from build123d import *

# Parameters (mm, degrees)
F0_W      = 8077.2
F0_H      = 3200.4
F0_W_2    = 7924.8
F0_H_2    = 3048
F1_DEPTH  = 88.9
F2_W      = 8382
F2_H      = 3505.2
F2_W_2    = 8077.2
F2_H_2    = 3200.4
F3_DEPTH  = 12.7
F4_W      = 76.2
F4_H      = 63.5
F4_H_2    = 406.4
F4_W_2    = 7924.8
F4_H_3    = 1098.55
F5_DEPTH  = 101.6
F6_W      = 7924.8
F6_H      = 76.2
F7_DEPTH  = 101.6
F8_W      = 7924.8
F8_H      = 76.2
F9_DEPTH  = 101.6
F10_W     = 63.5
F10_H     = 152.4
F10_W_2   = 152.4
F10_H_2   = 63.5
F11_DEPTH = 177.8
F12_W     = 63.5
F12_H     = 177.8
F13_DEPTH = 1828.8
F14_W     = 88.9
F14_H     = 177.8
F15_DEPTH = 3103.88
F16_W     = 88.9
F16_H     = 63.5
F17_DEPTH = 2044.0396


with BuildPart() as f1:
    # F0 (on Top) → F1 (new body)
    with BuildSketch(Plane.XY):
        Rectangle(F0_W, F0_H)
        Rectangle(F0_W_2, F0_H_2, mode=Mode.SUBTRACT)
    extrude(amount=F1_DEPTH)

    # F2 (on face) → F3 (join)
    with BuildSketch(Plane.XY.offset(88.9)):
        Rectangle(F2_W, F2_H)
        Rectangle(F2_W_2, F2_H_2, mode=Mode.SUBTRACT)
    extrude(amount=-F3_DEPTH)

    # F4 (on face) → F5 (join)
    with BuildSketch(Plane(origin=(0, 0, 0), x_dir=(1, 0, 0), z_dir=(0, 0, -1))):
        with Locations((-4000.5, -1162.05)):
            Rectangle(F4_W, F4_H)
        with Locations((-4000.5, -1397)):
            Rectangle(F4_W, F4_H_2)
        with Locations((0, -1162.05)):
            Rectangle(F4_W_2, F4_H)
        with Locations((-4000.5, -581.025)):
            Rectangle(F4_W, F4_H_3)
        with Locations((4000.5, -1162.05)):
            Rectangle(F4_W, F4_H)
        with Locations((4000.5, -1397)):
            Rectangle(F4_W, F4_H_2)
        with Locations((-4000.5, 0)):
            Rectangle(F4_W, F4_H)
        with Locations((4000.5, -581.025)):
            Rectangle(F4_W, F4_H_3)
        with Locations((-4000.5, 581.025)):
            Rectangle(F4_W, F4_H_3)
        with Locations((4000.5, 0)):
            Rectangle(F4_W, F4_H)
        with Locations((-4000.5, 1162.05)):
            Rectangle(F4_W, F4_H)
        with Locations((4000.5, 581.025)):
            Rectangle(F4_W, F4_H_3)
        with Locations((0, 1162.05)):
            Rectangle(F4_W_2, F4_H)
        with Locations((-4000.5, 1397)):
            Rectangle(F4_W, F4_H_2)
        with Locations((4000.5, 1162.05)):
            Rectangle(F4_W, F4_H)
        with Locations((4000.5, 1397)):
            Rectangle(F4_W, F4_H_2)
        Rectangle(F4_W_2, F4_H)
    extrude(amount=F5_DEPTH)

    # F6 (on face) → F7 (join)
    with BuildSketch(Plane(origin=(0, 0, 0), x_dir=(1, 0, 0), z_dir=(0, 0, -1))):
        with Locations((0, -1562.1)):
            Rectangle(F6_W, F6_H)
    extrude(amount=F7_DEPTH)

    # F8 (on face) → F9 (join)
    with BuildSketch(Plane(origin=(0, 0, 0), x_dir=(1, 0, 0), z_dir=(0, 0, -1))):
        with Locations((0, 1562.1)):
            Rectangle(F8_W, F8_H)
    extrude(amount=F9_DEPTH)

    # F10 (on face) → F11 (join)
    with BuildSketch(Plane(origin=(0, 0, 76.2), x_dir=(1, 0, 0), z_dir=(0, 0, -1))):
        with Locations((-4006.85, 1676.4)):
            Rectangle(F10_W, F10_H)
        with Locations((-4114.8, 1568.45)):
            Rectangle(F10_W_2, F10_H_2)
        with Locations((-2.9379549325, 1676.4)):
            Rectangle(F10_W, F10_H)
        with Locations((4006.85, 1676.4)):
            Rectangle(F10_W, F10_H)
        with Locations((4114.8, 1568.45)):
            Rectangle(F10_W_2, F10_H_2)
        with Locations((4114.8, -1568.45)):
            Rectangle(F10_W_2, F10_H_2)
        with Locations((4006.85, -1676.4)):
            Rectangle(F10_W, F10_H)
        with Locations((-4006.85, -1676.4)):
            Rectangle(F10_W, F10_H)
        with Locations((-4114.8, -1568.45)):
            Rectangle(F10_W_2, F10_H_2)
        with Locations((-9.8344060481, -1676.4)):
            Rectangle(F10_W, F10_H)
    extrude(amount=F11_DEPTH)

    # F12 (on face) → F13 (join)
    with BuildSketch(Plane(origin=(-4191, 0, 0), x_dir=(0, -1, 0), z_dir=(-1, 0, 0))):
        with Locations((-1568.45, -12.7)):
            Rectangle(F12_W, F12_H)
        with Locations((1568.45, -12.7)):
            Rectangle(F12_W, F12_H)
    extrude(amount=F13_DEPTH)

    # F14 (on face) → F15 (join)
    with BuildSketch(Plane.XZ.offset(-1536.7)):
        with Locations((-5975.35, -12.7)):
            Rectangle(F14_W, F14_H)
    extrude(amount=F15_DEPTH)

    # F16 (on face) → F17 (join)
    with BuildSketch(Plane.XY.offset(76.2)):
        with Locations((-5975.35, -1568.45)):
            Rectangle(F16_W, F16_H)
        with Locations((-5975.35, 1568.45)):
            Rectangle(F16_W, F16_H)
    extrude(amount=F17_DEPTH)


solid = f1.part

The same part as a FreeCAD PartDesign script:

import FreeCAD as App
import Part
import Sketcher
Q = App.Units.Quantity


def add_polygon(sketch, points):
    """Adds a closed chain of lines whose ends are joined by coincident constraints."""
    first, n = sketch.GeometryCount, len(points)
    for a, b in zip(points, points[1:] + points[:1]):
        sketch.addGeometry(Part.LineSegment(App.Vector(*a, 0), App.Vector(*b, 0)), False)
    for i in range(n):
        sketch.addConstraint(Sketcher.Constraint("Coincident", first + i, 2, first + (i + 1) % n, 1))

doc = App.newDocument("Part")
body = doc.addObject("PartDesign::Body", "Body")

# Sketch on XY plane
sketch1 = body.newObject("Sketcher::SketchObject", "Sketch")
sketch1.AttachmentSupport = (doc.getObject("XY_Plane"), [""])
sketch1.MapMode = "FlatFace"
add_polygon(sketch1, [(-4039, 1600), (-4039, -1600), (4039, -1600), (4039, 1600)])  # lines 0-3
add_polygon(sketch1, [(3962, -1524), (-3962, -1524), (-3962, 1524), (3962, 1524)])  # lines 4-7
sketch1.addConstraint(Sketcher.Constraint("Vertical", 0))
sketch1.addConstraint(Sketcher.Constraint("Horizontal", 1))
sketch1.addConstraint(Sketcher.Constraint("Vertical", 2))
sketch1.addConstraint(Sketcher.Constraint("Horizontal", 3))
sketch1.addConstraint(Sketcher.Constraint("Horizontal", 4))
sketch1.addConstraint(Sketcher.Constraint("Vertical", 5))
sketch1.addConstraint(Sketcher.Constraint("Horizontal", 6))
sketch1.addConstraint(Sketcher.Constraint("Vertical", 7))
sketch1.addConstraint(Sketcher.Constraint("Symmetric", 0, 2, 2, 2, -1, 1))
sketch1.addConstraint(Sketcher.Constraint("Symmetric", 4, 2, 6, 2, -1, 1))
sketch1.addConstraint(Sketcher.Constraint("DistanceX", 1, 1, 1, 2, Q("318 in")))
sketch1.addConstraint(Sketcher.Constraint("DistanceX", 4, 2, 4, 1, Q("312 in")))
sketch1.addConstraint(Sketcher.Constraint("DistanceY", 0, 2, 0, 1, Q("126 in")))
sketch1.addConstraint(Sketcher.Constraint("DistanceY", 5, 1, 5, 2, Q("120 in")))
pad1 = body.newObject("PartDesign::Pad", "Pad")
pad1.Profile = sketch1
pad1.Length = Q("3.5 in")

# Sketch on XY plane
sketch2 = body.newObject("Sketcher::SketchObject", "Sketch001")
sketch2.AttachmentSupport = (doc.getObject("XY_Plane"), [""])
sketch2.MapMode = "FlatFace"
sketch2.AttachmentOffset = App.Placement(App.Vector(0, 0, 3.5 * 25.4), App.Rotation())
add_polygon(sketch2, [(-4191, 1753), (-4191, -1753), (4191, -1753), (4191, 1753)])  # lines 0-3
add_polygon(sketch2, [(4039, -1600), (-4039, -1600), (-4039, 1600), (4039, 1600)])  # lines 4-7
sketch2.addConstraint(Sketcher.Constraint("Vertical", 0))
sketch2.addConstraint(Sketcher.Constraint("Horizontal", 1))
sketch2.addConstraint(Sketcher.Constraint("Vertical", 2))
sketch2.addConstraint(Sketcher.Constraint("Horizontal", 3))
sketch2.addConstraint(Sketcher.Constraint("Horizontal", 4))
sketch2.addConstraint(Sketcher.Constraint("Vertical", 5))
sketch2.addConstraint(Sketcher.Constraint("Horizontal", 6))
sketch2.addConstraint(Sketcher.Constraint("Vertical", 7))
sketch2.addConstraint(Sketcher.Constraint("Symmetric", 0, 2, 2, 2, -1, 1))
sketch2.addConstraint(Sketcher.Constraint("Symmetric", 4, 2, 6, 2, -1, 1))
sketch2.addConstraint(Sketcher.Constraint("DistanceX", 1, 1, 1, 2, Q("330 in")))
sketch2.addConstraint(Sketcher.Constraint("DistanceX", 4, 2, 4, 1, Q("318 in")))
sketch2.addConstraint(Sketcher.Constraint("DistanceY", 0, 2, 0, 1, Q("138 in")))
sketch2.addConstraint(Sketcher.Constraint("DistanceY", 5, 1, 5, 2, Q("126 in")))
pad2 = body.newObject("PartDesign::Pad", "Pad001")
pad2.Profile = sketch2
pad2.Length = Q("0.5 in")
pad2.Reversed = True

# Sketch on XY plane
sketch3 = body.newObject("Sketcher::SketchObject", "Sketch002")
sketch3.AttachmentSupport = (doc.getObject("XY_Plane"), [""])
sketch3.MapMode = "FlatFace"
add_polygon(sketch3, [(4039, 1600), (4039, -1600), (3962, -1600), (3962, -1194), (-3962, -1194), (-3962, -1600), (-4039, -1600), (-4039, 1600), (-3962, 1600), (-3962, 1194), (3962, 1194), (3962, 1600)])  # lines 0-11
add_polygon(sketch3, [(-3962, -1130), (3962, -1130), (3962, -32), (-3962, -32)])  # lines 12-15
add_polygon(sketch3, [(3962, 32), (3962, 1130), (-3962, 1130), (-3962, 32)])  # lines 16-19
sketch3.addConstraint(Sketcher.Constraint("Vertical", 0))
sketch3.addConstraint(Sketcher.Constraint("Horizontal", 1))
sketch3.addConstraint(Sketcher.Constraint("Vertical", 2))
sketch3.addConstraint(Sketcher.Constraint("Horizontal", 3))
sketch3.addConstraint(Sketcher.Constraint("Vertical", 4))
sketch3.addConstraint(Sketcher.Constraint("Horizontal", 5))
sketch3.addConstraint(Sketcher.Constraint("Vertical", 6))
sketch3.addConstraint(Sketcher.Constraint("Horizontal", 7))
sketch3.addConstraint(Sketcher.Constraint("Vertical", 8))
sketch3.addConstraint(Sketcher.Constraint("Horizontal", 9))
sketch3.addConstraint(Sketcher.Constraint("Vertical", 10))
sketch3.addConstraint(Sketcher.Constraint("Horizontal", 11))
sketch3.addConstraint(Sketcher.Constraint("Horizontal", 12))
sketch3.addConstraint(Sketcher.Constraint("Vertical", 13))
sketch3.addConstraint(Sketcher.Constraint("Horizontal", 14))
sketch3.addConstraint(Sketcher.Constraint("Vertical", 15))
sketch3.addConstraint(Sketcher.Constraint("Vertical", 16))
sketch3.addConstraint(Sketcher.Constraint("Horizontal", 17))
sketch3.addConstraint(Sketcher.Constraint("Vertical", 18))
sketch3.addConstraint(Sketcher.Constraint("Horizontal", 19))
sketch3.addConstraint(Sketcher.Constraint("Symmetric", 0, 2, 6, 2, -1, 1))
sketch3.addConstraint(Sketcher.Constraint("Symmetric", 2, 2, 8, 2, -1, 1))
sketch3.addConstraint(Sketcher.Constraint("Symmetric", 4, 2, 10, 2, -1, 1))
sketch3.addConstraint(Sketcher.Constraint("Symmetric", 15, 2, 16, 2, -1, 1))
sketch3.addConstraint(Sketcher.Constraint("Symmetric", 13, 2, 18, 2, -1, 1))
sketch3.addConstraint(Sketcher.Constraint("Symmetric", 1, 2, 4, 2, -2))
sketch3.addConstraint(Sketcher.Constraint("Vertical", 10, 2, 12, 2))
sketch3.addConstraint(Sketcher.Constraint("Vertical", 8, 2, 14, 2))
sketch3.addConstraint(Sketcher.Constraint("DistanceX", 1, 2, 1, 1, Q("3 in")))
sketch3.addConstraint(Sketcher.Constraint("DistanceX", 3, 2, 3, 1, Q("312 in")))
sketch3.addConstraint(Sketcher.Constraint("DistanceY", 0, 2, 0, 1, Q("126 in")))
sketch3.addConstraint(Sketcher.Constraint("DistanceY", 2, 1, 2, 2, Q("16 in")))
sketch3.addConstraint(Sketcher.Constraint("DistanceY", 12, 2, 16, 2, Q("89 in")))
sketch3.addConstraint(Sketcher.Constraint("DistanceY", 13, 1, 13, 2, Q("43.25 in")))
pad3 = body.newObject("PartDesign::Pad", "Pad002")
pad3.Profile = sketch3
pad3.Length = Q("4 in")
pad3.Reversed = True

# Sketch on XY plane
sketch4 = body.newObject("Sketcher::SketchObject", "Sketch003")
sketch4.AttachmentSupport = (doc.getObject("XY_Plane"), [""])
sketch4.MapMode = "FlatFace"
add_polygon(sketch4, [(-3962, 1524), (-3962, 1600), (3962, 1600), (3962, 1524)])  # lines 0-3
sketch4.addConstraint(Sketcher.Constraint("Vertical", 0))
sketch4.addConstraint(Sketcher.Constraint("Horizontal", 1))
sketch4.addConstraint(Sketcher.Constraint("Vertical", 2))
sketch4.addConstraint(Sketcher.Constraint("Horizontal", 3))
sketch4.addConstraint(Sketcher.Constraint("DistanceX", 1, 1, 1, 2, Q("312 in")))
sketch4.addConstraint(Sketcher.Constraint("DistanceY", 0, 1, 0, 2, Q("3 in")))
sketch4.addConstraint(Sketcher.Constraint("DistanceX", 0, 2, -1, 1, Q("156 in")))
sketch4.addConstraint(Sketcher.Constraint("DistanceY", -1, 1, 0, 2, Q("63 in")))
pad4 = body.newObject("PartDesign::Pad", "Pad003")
pad4.Profile = sketch4
pad4.Length = Q("4 in")
pad4.Reversed = True

# Sketch on XY plane
sketch5 = body.newObject("Sketcher::SketchObject", "Sketch004")
sketch5.AttachmentSupport = (doc.getObject("XY_Plane"), [""])
sketch5.MapMode = "FlatFace"
add_polygon(sketch5, [(-3962, -1600), (-3962, -1524), (3962, -1524), (3962, -1600)])  # lines 0-3
sketch5.addConstraint(Sketcher.Constraint("Vertical", 0))
sketch5.addConstraint(Sketcher.Constraint("Horizontal", 1))
sketch5.addConstraint(Sketcher.Constraint("Vertical", 2))
sketch5.addConstraint(Sketcher.Constraint("Horizontal", 3))
sketch5.addConstraint(Sketcher.Constraint("DistanceX", 1, 1, 1, 2, Q("312 in")))
sketch5.addConstraint(Sketcher.Constraint("DistanceY", 0, 1, 0, 2, Q("3 in")))
sketch5.addConstraint(Sketcher.Constraint("DistanceX", 0, 2, -1, 1, Q("156 in")))
sketch5.addConstraint(Sketcher.Constraint("DistanceY", 0, 2, -1, 1, Q("60 in")))
pad5 = body.newObject("PartDesign::Pad", "Pad004")
pad5.Profile = sketch5
pad5.Length = Q("4 in")
pad5.Reversed = True

# Sketch on XY plane
sketch6 = body.newObject("Sketcher::SketchObject", "Sketch005")
sketch6.AttachmentSupport = (doc.getObject("XY_Plane"), [""])
sketch6.MapMode = "FlatFace"
sketch6.AttachmentOffset = App.Placement(App.Vector(0, 0, 3 * 25.4), App.Rotation())
add_polygon(sketch6, [(-4039, -1753), (-4039, -1600), (-3975, -1600), (-3975, -1753)])  # lines 0-3
add_polygon(sketch6, [(-4191, -1600), (-4191, -1537), (-4039, -1537), (-4039, -1600)])  # lines 4-7
add_polygon(sketch6, [(-35, -1753), (-35, -1600), (29, -1600), (29, -1753)])  # lines 8-11
add_polygon(sketch6, [(3975, -1753), (3975, -1600), (4039, -1600), (4039, -1753)])  # lines 12-15
add_polygon(sketch6, [(4039, -1600), (4039, -1537), (4191, -1537), (4191, -1600)])  # lines 16-19
add_polygon(sketch6, [(4039, 1537), (4039, 1600), (4191, 1600), (4191, 1537)])  # lines 20-23
add_polygon(sketch6, [(3975, 1600), (3975, 1753), (4039, 1753), (4039, 1600)])  # lines 24-27
add_polygon(sketch6, [(-4039, 1600), (-4039, 1753), (-3975, 1753), (-3975, 1600)])  # lines 28-31
add_polygon(sketch6, [(-4191, 1537), (-4191, 1600), (-4039, 1600), (-4039, 1537)])  # lines 32-35
add_polygon(sketch6, [(-42, 1600), (-42, 1753), (22, 1753), (22, 1600)])  # lines 36-39
sketch6.addConstraint(Sketcher.Constraint("Vertical", 0))
sketch6.addConstraint(Sketcher.Constraint("Horizontal", 1))
sketch6.addConstraint(Sketcher.Constraint("Vertical", 2))
sketch6.addConstraint(Sketcher.Constraint("Horizontal", 3))
sketch6.addConstraint(Sketcher.Constraint("Vertical", 4))
sketch6.addConstraint(Sketcher.Constraint("Horizontal", 5))
sketch6.addConstraint(Sketcher.Constraint("Vertical", 6))
sketch6.addConstraint(Sketcher.Constraint("Horizontal", 7))
sketch6.addConstraint(Sketcher.Constraint("Vertical", 8))
sketch6.addConstraint(Sketcher.Constraint("Horizontal", 9))
sketch6.addConstraint(Sketcher.Constraint("Vertical", 10))
sketch6.addConstraint(Sketcher.Constraint("Horizontal", 11))
sketch6.addConstraint(Sketcher.Constraint("Vertical", 12))
sketch6.addConstraint(Sketcher.Constraint("Horizontal", 13))
sketch6.addConstraint(Sketcher.Constraint("Vertical", 14))
sketch6.addConstraint(Sketcher.Constraint("Horizontal", 15))
sketch6.addConstraint(Sketcher.Constraint("Vertical", 16))
sketch6.addConstraint(Sketcher.Constraint("Horizontal", 17))
sketch6.addConstraint(Sketcher.Constraint("Vertical", 18))
sketch6.addConstraint(Sketcher.Constraint("Horizontal", 19))
sketch6.addConstraint(Sketcher.Constraint("Vertical", 20))
sketch6.addConstraint(Sketcher.Constraint("Horizontal", 21))
sketch6.addConstraint(Sketcher.Constraint("Vertical", 22))
sketch6.addConstraint(Sketcher.Constraint("Horizontal", 23))
sketch6.addConstraint(Sketcher.Constraint("Vertical", 24))
sketch6.addConstraint(Sketcher.Constraint("Horizontal", 25))
sketch6.addConstraint(Sketcher.Constraint("Vertical", 26))
sketch6.addConstraint(Sketcher.Constraint("Horizontal", 27))
sketch6.addConstraint(Sketcher.Constraint("Vertical", 28))
sketch6.addConstraint(Sketcher.Constraint("Horizontal", 29))
sketch6.addConstraint(Sketcher.Constraint("Vertical", 30))
sketch6.addConstraint(Sketcher.Constraint("Horizontal", 31))
sketch6.addConstraint(Sketcher.Constraint("Vertical", 32))
sketch6.addConstraint(Sketcher.Constraint("Horizontal", 33))
sketch6.addConstraint(Sketcher.Constraint("Vertical", 34))
sketch6.addConstraint(Sketcher.Constraint("Horizontal", 35))
sketch6.addConstraint(Sketcher.Constraint("Vertical", 36))
sketch6.addConstraint(Sketcher.Constraint("Horizontal", 37))
sketch6.addConstraint(Sketcher.Constraint("Vertical", 38))
sketch6.addConstraint(Sketcher.Constraint("Horizontal", 39))
sketch6.addConstraint(Sketcher.Constraint("Coincident", 6, 2, 0, 2))
sketch6.addConstraint(Sketcher.Constraint("Coincident", 19, 2, 13, 2))
sketch6.addConstraint(Sketcher.Constraint("Coincident", 26, 2, 20, 2))
sketch6.addConstraint(Sketcher.Constraint("Coincident", 33, 2, 31, 2))
sketch6.addConstraint(Sketcher.Constraint("Symmetric", 0, 2, 20, 2, -1, 1))
sketch6.addConstraint(Sketcher.Constraint("Symmetric", 4, 2, 22, 2, -1, 1))
sketch6.addConstraint(Sketcher.Constraint("Symmetric", 2, 2, 24, 2, -1, 1))
sketch6.addConstraint(Sketcher.Constraint("Symmetric", 14, 2, 28, 2, -1, 1))
sketch6.addConstraint(Sketcher.Constraint("Symmetric", 12, 2, 30, 2, -1, 1))
sketch6.addConstraint(Sketcher.Constraint("Symmetric", 17, 2, 35, 2, -1, 1))
sketch6.addConstraint(Sketcher.Constraint("Symmetric", 1, 2, 12, 2, -2))
sketch6.addConstraint(Sketcher.Constraint("Symmetric", 3, 2, 14, 2, -2))
sketch6.addConstraint(Sketcher.Constraint("Symmetric", 4, 2, 17, 2, -2))
sketch6.addConstraint(Sketcher.Constraint("Horizontal", 7, 2, 8, 2))
sketch6.addConstraint(Sketcher.Constraint("Horizontal", 3, 2, 10, 2))
sketch6.addConstraint(Sketcher.Constraint("Horizontal", 29, 2, 36, 2))
sketch6.addConstraint(Sketcher.Constraint("Horizontal", 33, 2, 38, 2))
sketch6.addConstraint(Sketcher.Constraint("Equal", 3, 9))
sketch6.addConstraint(Sketcher.Constraint("Equal", 31, 37))
sketch6.addConstraint(Sketcher.Constraint("Equal", 35, 0))
sketch6.addConstraint(Sketcher.Constraint("Equal", 39, 4))
sketch6.addConstraint(Sketcher.Constraint("DistanceX", 5, 1, 5, 2, Q("6 in")))
sketch6.addConstraint(Sketcher.Constraint("DistanceX", 1, 1, 1, 2, Q("2.5 in")))
sketch6.addConstraint(Sketcher.Constraint("DistanceX", 0, 2, -1, 1, Q("159 in")))
sketch6.addConstraint(Sketcher.Constraint("DistanceY", 0, 2, -1, 1, Q("63 in")))
sketch6.addConstraint(Sketcher.Constraint("DistanceX", 36, 2, 8, 2, 6.896451))
sketch6.addConstraint(Sketcher.Constraint("DistanceX", 8, 2, -1, 1, 34.687955))
pad6 = body.newObject("PartDesign::Pad", "Pad005")
pad6.Profile = sketch6
pad6.Length = Q("7 in")
pad6.Reversed = True

# Sketch on YZ plane
sketch7 = body.newObject("Sketcher::SketchObject", "Sketch006")
sketch7.AttachmentSupport = (doc.getObject("YZ_Plane"), [""])
sketch7.MapMode = "FlatFace"
sketch7.AttachmentOffset = App.Placement(App.Vector(0, 0, -165 * 25.4), App.Rotation())
add_polygon(sketch7, [(1600, 76), (1600, -102), (1537, -102), (1537, 76)])  # lines 0-3
add_polygon(sketch7, [(-1537, 76), (-1537, -102), (-1600, -102), (-1600, 76)])  # lines 4-7
sketch7.addConstraint(Sketcher.Constraint("Vertical", 0))
sketch7.addConstraint(Sketcher.Constraint("Horizontal", 1))
sketch7.addConstraint(Sketcher.Constraint("Vertical", 2))
sketch7.addConstraint(Sketcher.Constraint("Horizontal", 3))
sketch7.addConstraint(Sketcher.Constraint("Vertical", 4))
sketch7.addConstraint(Sketcher.Constraint("Horizontal", 5))
sketch7.addConstraint(Sketcher.Constraint("Vertical", 6))
sketch7.addConstraint(Sketcher.Constraint("Horizontal", 7))
sketch7.addConstraint(Sketcher.Constraint("Symmetric", 1, 2, 4, 2, -2))
sketch7.addConstraint(Sketcher.Constraint("Symmetric", 3, 2, 6, 2, -2))
sketch7.addConstraint(Sketcher.Constraint("DistanceY", 0, 2, 0, 1, Q("7 in")))
sketch7.addConstraint(Sketcher.Constraint("DistanceX", 1, 2, 1, 1, Q("2.5 in")))
sketch7.addConstraint(Sketcher.Constraint("DistanceX", -1, 1, 0, 2, Q("63 in")))
sketch7.addConstraint(Sketcher.Constraint("DistanceY", 0, 2, -1, 1, Q("4 in")))
pad7 = body.newObject("PartDesign::Pad", "Pad006")
pad7.Profile = sketch7
pad7.Length = Q("72 in")
pad7.Reversed = True

# Sketch on XZ plane
sketch8 = body.newObject("Sketcher::SketchObject", "Sketch007")
sketch8.AttachmentSupport = (doc.getObject("XZ_Plane"), [""])
sketch8.MapMode = "FlatFace"
sketch8.AttachmentOffset = App.Placement(App.Vector(0, 0, -60.5 * 25.4), App.Rotation())
add_polygon(sketch8, [(-6020, 76), (-6020, -102), (-5931, -102), (-5931, 76)])  # lines 0-3
sketch8.addConstraint(Sketcher.Constraint("Vertical", 0))
sketch8.addConstraint(Sketcher.Constraint("Horizontal", 1))
sketch8.addConstraint(Sketcher.Constraint("Vertical", 2))
sketch8.addConstraint(Sketcher.Constraint("Horizontal", 3))
sketch8.addConstraint(Sketcher.Constraint("DistanceY", 0, 2, 0, 1, Q("7 in")))
sketch8.addConstraint(Sketcher.Constraint("DistanceX", 1, 1, 1, 2, Q("3.5 in")))
sketch8.addConstraint(Sketcher.Constraint("DistanceX", 0, 2, -1, 1, Q("237 in")))
sketch8.addConstraint(Sketcher.Constraint("DistanceY", 0, 2, -1, 1, Q("4 in")))
pad8 = body.newObject("PartDesign::Pad", "Pad007")
pad8.Profile = sketch8
pad8.Length = Q("122.2 in")

# Sketch on XY plane
sketch9 = body.newObject("Sketcher::SketchObject", "Sketch008")
sketch9.AttachmentSupport = (doc.getObject("XY_Plane"), [""])
sketch9.MapMode = "FlatFace"
sketch9.AttachmentOffset = App.Placement(App.Vector(0, 0, 3 * 25.4), App.Rotation())
add_polygon(sketch9, [(-6020, -1537), (-6020, -1600), (-5931, -1600), (-5931, -1537)])  # lines 0-3
add_polygon(sketch9, [(-6020, 1600), (-6020, 1537), (-5931, 1537), (-5931, 1600)])  # lines 4-7
sketch9.addConstraint(Sketcher.Constraint("Vertical", 0))
sketch9.addConstraint(Sketcher.Constraint("Horizontal", 1))
sketch9.addConstraint(Sketcher.Constraint("Vertical", 2))
sketch9.addConstraint(Sketcher.Constraint("Horizontal", 3))
sketch9.addConstraint(Sketcher.Constraint("Vertical", 4))
sketch9.addConstraint(Sketcher.Constraint("Horizontal", 5))
sketch9.addConstraint(Sketcher.Constraint("Vertical", 6))
sketch9.addConstraint(Sketcher.Constraint("Horizontal", 7))
sketch9.addConstraint(Sketcher.Constraint("Symmetric", 3, 2, 4, 2, -1))
sketch9.addConstraint(Sketcher.Constraint("Symmetric", 1, 2, 6, 2, -1))
sketch9.addConstraint(Sketcher.Constraint("DistanceX", 1, 1, 1, 2, Q("3.5 in")))
sketch9.addConstraint(Sketcher.Constraint("DistanceY", 0, 2, 0, 1, Q("2.5 in")))
sketch9.addConstraint(Sketcher.Constraint("DistanceX", 0, 2, -1, 1, Q("237 in")))
sketch9.addConstraint(Sketcher.Constraint("DistanceY", 0, 2, -1, 1, Q("63 in")))
pad9 = body.newObject("PartDesign::Pad", "Pad008")
pad9.Profile = sketch9
pad9.Length = Q("80.474 in")

doc.recompute()
